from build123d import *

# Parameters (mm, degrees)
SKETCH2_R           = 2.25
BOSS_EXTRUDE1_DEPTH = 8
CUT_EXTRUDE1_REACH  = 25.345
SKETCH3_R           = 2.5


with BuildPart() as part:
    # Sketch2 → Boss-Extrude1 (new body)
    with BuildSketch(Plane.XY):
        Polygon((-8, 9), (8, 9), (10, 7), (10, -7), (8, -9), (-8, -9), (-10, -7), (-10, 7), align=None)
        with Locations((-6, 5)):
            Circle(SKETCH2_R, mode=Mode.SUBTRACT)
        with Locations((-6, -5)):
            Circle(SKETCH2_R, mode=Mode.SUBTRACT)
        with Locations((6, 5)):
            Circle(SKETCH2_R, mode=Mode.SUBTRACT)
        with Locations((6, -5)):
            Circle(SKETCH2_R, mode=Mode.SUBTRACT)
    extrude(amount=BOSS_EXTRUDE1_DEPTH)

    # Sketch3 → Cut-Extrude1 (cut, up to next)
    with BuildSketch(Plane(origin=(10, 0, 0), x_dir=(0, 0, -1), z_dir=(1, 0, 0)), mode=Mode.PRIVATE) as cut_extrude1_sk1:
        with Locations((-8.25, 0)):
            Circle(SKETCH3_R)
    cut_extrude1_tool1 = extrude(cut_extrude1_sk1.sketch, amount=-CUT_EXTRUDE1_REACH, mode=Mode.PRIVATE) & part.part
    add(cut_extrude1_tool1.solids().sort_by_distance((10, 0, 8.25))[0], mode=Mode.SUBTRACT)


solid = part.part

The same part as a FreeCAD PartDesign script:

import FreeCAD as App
import Part
import Sketcher
from FreeCAD import Vector
Q = App.Units.Quantity


def add_polygon(sketch, points):
    """Adds a closed chain of lines whose ends are joined by coincident constraints."""
    first, n = sketch.GeometryCount, len(points)
    for a, b in zip(points, points[1:] + points[:1]):
        sketch.addGeometry(Part.LineSegment(App.Vector(*a, 0), App.Vector(*b, 0)), False)
    for i in range(n):
        sketch.addConstraint(Sketcher.Constraint("Coincident", first + i, 2, first + (i + 1) % n, 1))

doc = App.newDocument("Part")
body = doc.addObject("PartDesign::Body", "Body")

sketch1 = body.newObject("Sketcher::SketchObject", "Sketch")
sketch1.AttachmentSupport = (doc.getObject("XY_Plane"), [""])
sketch1.MapMode = "FlatFace"
add_polygon(sketch1, [(8, 9), (-8, 9), (-10, 7), (-10, -7), (-8, -9), (8, -9), (10, -7), (10, 7)])
sketch1.addGeometry(Part.Circle(Vector(6, -5, 0), Vector(0, 0, 1), 2.2), False)
sketch1.addGeometry(Part.Circle(Vector(-6, -5, 0), Vector(0, 0, 1), 2.2), False)
sketch1.addGeometry(Part.Circle(Vector(6, 5, 0), Vector(0, 0, 1), 2.2), False)
sketch1.addGeometry(Part.Circle(Vector(-6, 5, 0), Vector(0, 0, 1), 2.2), False)
sketch1.addConstraint([
    Sketcher.Constraint("Horizontal", 0),
    Sketcher.Constraint("Vertical", 2),
    Sketcher.Constraint("Horizontal", 4),
    Sketcher.Constraint("Vertical", 6),
    Sketcher.Constraint("Equal", 8, 9),
    Sketcher.Constraint("Equal", 9, 10),
    Sketcher.Constraint("Equal", 10, 11),
    Sketcher.Constraint("Symmetric", 9, 3, 10, 3, -1, 1),
    Sketcher.Constraint("Symmetric", 8, 3, 11, 3, -1, 1),
    Sketcher.Constraint("Symmetric", 0, 2, 4, 2, -1, 1),
    Sketcher.Constraint("Symmetric", 1, 2, 5, 2, -1, 1),
    Sketcher.Constraint("Symmetric", 8, 3, 9, 3, -2),
    Sketcher.Constraint("Perpendicular", 1, 3),
    Sketcher.Constraint("Perpendicular", 5, 7),
    Sketcher.Constraint("Horizontal", 2, 2, 5, 2),
    Sketcher.Constraint("Horizontal", 1, 2, 6, 2),
    Sketcher.Constraint("Vertical", 0, 2, 3, 2),
    Sketcher.Constraint("Diameter", 8, Q("4.5 mm")),
    Sketcher.Constraint("DistanceX", 0, 2, 0, 1, Q("16 mm")),
    Sketcher.Constraint("DistanceY", 2, 2, 2, 1, Q("14 mm")),
    Sketcher.Constraint("DistanceX", -1, 1, 8, 3, Q("6 mm")),
    Sketcher.Constraint("DistanceY", 8, 3, -1, 1, Q("5 mm")),
    Sketcher.Constraint("DistanceY", -1, 1, 0, 2, Q("9 mm")),
])
pad1 = body.newObject("PartDesign::Pad", "Pad")
pad1.Profile = sketch1
pad1.Length = 8

sketch2 = body.newObject("Sketcher::SketchObject", "Sketch001")
sketch2.AttachmentSupport = (doc.getObject("YZ_Plane"), [""])
sketch2.MapMode = "FlatFace"
sketch2.AttachmentOffset = App.Placement(Vector(0, 0, 10), App.Rotation())
sketch2.addGeometry(Part.Circle(Vector(0, 8.2, 0), Vector(0, 0, 1), 2.5), False)
sketch2.addConstraint([
    Sketcher.Constraint("PointOnObject", 0, 3, -2),
    Sketcher.Constraint("Diameter", 0, Q("5 mm")),
    Sketcher.Constraint("DistanceY", -1, 1, 0, 3, Q("8.25 mm")),
])
pocket1 = body.newObject("PartDesign::Pocket", "Pocket")
pocket1.Profile = sketch2
pocket1.Length = 20

doc.recompute()
